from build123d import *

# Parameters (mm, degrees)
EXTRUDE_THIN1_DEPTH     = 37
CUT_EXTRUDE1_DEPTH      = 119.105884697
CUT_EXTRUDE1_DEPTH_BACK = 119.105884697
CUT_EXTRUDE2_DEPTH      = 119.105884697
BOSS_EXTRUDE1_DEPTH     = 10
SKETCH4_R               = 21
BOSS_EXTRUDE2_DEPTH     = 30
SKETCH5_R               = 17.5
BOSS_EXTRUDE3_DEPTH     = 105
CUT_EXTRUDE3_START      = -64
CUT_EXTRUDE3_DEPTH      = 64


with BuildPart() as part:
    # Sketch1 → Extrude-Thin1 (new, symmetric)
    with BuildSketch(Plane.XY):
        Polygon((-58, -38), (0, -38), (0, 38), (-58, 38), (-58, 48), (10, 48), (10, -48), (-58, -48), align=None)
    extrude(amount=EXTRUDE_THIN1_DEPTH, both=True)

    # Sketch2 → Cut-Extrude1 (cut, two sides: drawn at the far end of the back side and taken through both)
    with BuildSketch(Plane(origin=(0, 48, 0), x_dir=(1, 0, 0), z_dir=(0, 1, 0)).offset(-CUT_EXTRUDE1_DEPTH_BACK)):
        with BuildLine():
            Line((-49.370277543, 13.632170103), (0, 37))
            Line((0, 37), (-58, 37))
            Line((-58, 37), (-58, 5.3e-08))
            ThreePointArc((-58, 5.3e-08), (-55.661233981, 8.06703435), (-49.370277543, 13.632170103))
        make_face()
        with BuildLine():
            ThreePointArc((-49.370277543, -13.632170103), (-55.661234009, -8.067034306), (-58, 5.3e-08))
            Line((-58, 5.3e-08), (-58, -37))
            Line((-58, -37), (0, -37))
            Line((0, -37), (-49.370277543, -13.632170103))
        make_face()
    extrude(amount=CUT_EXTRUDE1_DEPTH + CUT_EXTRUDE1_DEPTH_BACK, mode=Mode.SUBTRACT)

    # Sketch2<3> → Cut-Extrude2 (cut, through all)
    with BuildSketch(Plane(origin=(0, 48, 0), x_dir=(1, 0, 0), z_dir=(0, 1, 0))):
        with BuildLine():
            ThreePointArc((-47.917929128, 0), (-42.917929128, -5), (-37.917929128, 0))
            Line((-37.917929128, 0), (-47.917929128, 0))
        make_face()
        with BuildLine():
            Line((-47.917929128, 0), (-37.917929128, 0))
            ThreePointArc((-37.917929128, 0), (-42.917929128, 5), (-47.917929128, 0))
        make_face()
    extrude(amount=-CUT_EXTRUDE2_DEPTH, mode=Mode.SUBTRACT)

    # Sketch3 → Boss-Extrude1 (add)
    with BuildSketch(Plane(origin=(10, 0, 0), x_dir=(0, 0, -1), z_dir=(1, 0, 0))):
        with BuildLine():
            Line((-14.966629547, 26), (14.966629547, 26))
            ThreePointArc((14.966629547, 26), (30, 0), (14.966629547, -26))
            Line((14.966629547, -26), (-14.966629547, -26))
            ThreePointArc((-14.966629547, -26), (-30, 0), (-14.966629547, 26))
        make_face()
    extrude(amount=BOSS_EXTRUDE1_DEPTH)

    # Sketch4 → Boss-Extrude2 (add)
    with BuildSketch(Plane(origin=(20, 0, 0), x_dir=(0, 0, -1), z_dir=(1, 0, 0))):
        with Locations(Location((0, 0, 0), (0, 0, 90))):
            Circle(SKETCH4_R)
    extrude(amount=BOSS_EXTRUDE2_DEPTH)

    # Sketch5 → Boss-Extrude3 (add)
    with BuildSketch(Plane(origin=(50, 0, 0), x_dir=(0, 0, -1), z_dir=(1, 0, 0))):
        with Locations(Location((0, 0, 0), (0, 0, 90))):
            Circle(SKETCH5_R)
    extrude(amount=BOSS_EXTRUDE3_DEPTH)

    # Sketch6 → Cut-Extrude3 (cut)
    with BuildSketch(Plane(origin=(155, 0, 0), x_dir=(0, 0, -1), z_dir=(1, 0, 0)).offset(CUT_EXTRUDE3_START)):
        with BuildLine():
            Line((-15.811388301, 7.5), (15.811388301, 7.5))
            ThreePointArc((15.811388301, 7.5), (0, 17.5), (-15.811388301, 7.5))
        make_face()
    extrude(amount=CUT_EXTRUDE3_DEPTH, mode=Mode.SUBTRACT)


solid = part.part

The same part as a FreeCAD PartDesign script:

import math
import FreeCAD as App
import Part
import Sketcher
from FreeCAD import Vector


def add_polygon(sketch, points):
    """Adds a closed chain of lines whose ends are joined by coincident constraints."""
    first, n = sketch.GeometryCount, len(points)
    for a, b in zip(points, points[1:] + points[:1]):
        sketch.addGeometry(Part.LineSegment(App.Vector(*a, 0), App.Vector(*b, 0)), False)
    for i in range(n):
        sketch.addConstraint(Sketcher.Constraint("Coincident", first + i, 2, first + (i + 1) % n, 1))

doc = App.newDocument("Part")
body = doc.addObject("PartDesign::Body", "Body")

# Sketch on XY plane
sketch1 = doc.addObject("Sketcher::SketchObject", "Sketch")
body.addObject(sketch1)
sketch1.AttachmentSupport = (doc.XY_Plane, [""])
sketch1.MapMode = "FlatFace"
add_polygon(sketch1, [(0, -38), (-58, -38), (-58, -48), (10, -48), (10, 48), (-58, 48), (-58, 38), (0, 38)])  # lines 0-7
sketch1.addConstraint([
    Sketcher.Constraint("Horizontal", 0),
    Sketcher.Constraint("Vertical", 1),
    Sketcher.Constraint("Horizontal", 2),
    Sketcher.Constraint("Vertical", 3),
    Sketcher.Constraint("Horizontal", 4),
    Sketcher.Constraint("Vertical", 5),
    Sketcher.Constraint("Horizontal", 6),
    Sketcher.Constraint("Vertical", 7),
    Sketcher.Constraint("Symmetric", 6, 2, 7, 2, -1, 1),
    Sketcher.Constraint("Symmetric", 1, 2, 4, 2, -1),
    Sketcher.Constraint("DistanceX", 0, 2, 0, 1, 58.0),
    Sketcher.Constraint("DistanceX", 2, 1, 2, 2, 68.0),
    Sketcher.Constraint("DistanceY", 1, 2, 1, 1, 10.0),
    Sketcher.Constraint("DistanceY", 3, 1, 3, 2, 96.0),
])
pad1 = doc.addObject("PartDesign::Pad", "Pad")
body.addObject(pad1)
pad1.Profile = sketch1
pad1.Length = 74
pad1.Midplane = True

# Sketch on XZ plane
sketch2 = doc.addObject("Sketcher::SketchObject", "Sketch001")
body.addObject(sketch2)
sketch2.AttachmentSupport = (doc.XZ_Plane, [""])
sketch2.MapMode = "FlatFace"
sketch2.AttachmentOffset = App.Placement(Vector(0, 0, -48), App.Rotation())
sketch2.addGeometry([
    Part.LineSegment(Vector(-49.370278, -13.63217, 0), Vector(0, -37, 0)),  # 0
    Part.LineSegment(Vector(0, -37, 0), Vector(-58, -37, 0)),  # 1
    Part.LineSegment(Vector(-58, -37, 0), Vector(-58, 0, 0)),  # 2
    Part.ArcOfCircle(Part.Circle(Vector(-42.917929, 0, 0), Vector(0, 0, 1), 15.082071), math.radians(-180), math.radians(-115.329026)),  # 3
    Part.ArcOfCircle(Part.Circle(Vector(-42.917929, 0, 0), Vector(0, 0, 1), 15.082071), math.radians(115.329026), math.radians(180)),  # 4
    Part.LineSegment(Vector(-58, 0, 0), Vector(-58, 37, 0)),  # 5
    Part.LineSegment(Vector(-58, 37, 0), Vector(0, 37, 0)),  # 6
    Part.LineSegment(Vector(0, 37, 0), Vector(-49.370278, 13.63217, 0)),  # 7
], False)
sketch2.addConstraint([
    Sketcher.Constraint("Coincident", 0, 2, 1, 1),
    Sketcher.Constraint("Coincident", 1, 2, 2, 1),
    Sketcher.Constraint("Tangent", 2, 2, 3, 1),
    Sketcher.Constraint("Tangent", 3, 2, 0, 1),
    Sketcher.Constraint("Tangent", 4, 2, 5, 1),
    Sketcher.Constraint("Coincident", 5, 2, 6, 1),
    Sketcher.Constraint("Coincident", 6, 2, 7, 1),
    Sketcher.Constraint("Tangent", 7, 2, 4, 1),
    Sketcher.Constraint("Horizontal", 1),
    Sketcher.Constraint("Vertical", 2),
    Sketcher.Constraint("Vertical", 5),
    Sketcher.Constraint("Horizontal", 6),
    Sketcher.Constraint("Coincident", 4, 3, 3, 3),
    Sketcher.Constraint("Equal", 3, 4),
    Sketcher.Constraint("Symmetric", 0, 2, 6, 2, -1, 1),
    Sketcher.Constraint("Symmetric", 3, 2, 7, 2, -1),
    Sketcher.Constraint("DistanceX", 1, 2, 1, 1, 58.0),
    Sketcher.Constraint("DistanceY", 2, 1, 2, 2, 37.0),
    Sketcher.Constraint("Radius", 3, 15.082071),
])
pocket1 = doc.addObject("PartDesign::Pocket", "Pocket")
body.addObject(pocket1)
pocket1.Profile = sketch2
pocket1.Type = "ThroughAll"
pocket1.Midplane = True

# Sketch on XZ plane
sketch3 = doc.addObject("Sketcher::SketchObject", "Sketch002")
body.addObject(sketch3)
sketch3.AttachmentSupport = (doc.XZ_Plane, [""])
sketch3.MapMode = "FlatFace"
sketch3.AttachmentOffset = App.Placement(Vector(0, 0, -48), App.Rotation())
sketch3.addGeometry(Part.Circle(Vector(-42.917929, 0, 0), Vector(0, 0, 1), 5), False)
sketch3.addConstraint([
    Sketcher.Constraint("PointOnObject", 0, 3, -1),
    Sketcher.Constraint("Diameter", 0, 10.0),
    Sketcher.Constraint("DistanceX", 0, 3, -1, 1, 42.917929),
])
pocket2 = doc.addObject("PartDesign::Pocket", "Pocket001")
body.addObject(pocket2)
pocket2.Profile = sketch3
pocket2.Type = "ThroughAll"
pocket2.Reversed = True

# Sketch on YZ plane
sketch4 = doc.addObject("Sketcher::SketchObject", "Sketch003")
body.addObject(sketch4)
sketch4.AttachmentSupport = (doc.YZ_Plane, [""])
sketch4.MapMode = "FlatFace"
sketch4.AttachmentOffset = App.Placement(Vector(0, 0, 10), App.Rotation())
sketch4.addGeometry([
    Part.LineSegment(Vector(26, -14.96663, 0), Vector(26, 14.96663, 0)),
    Part.ArcOfCircle(Part.Circle(Vector(0, 0, 0), Vector(0, 0, 1), 30), math.radians(29.926435), math.radians(150.073565)),
    Part.LineSegment(Vector(-26, 14.96663, 0), Vector(-26, -14.96663, 0)),
    Part.ArcOfCircle(Part.Circle(Vector(0, 0, 0), Vector(0, 0, 1), 30), math.radians(-150.073565), math.radians(-29.926435)),
], False)
sketch4.addConstraint([
    Sketcher.Constraint("Coincident", 0, 2, 1, 1),
    Sketcher.Constraint("Coincident", 1, 2, 2, 1),
    Sketcher.Constraint("Coincident", 2, 2, 3, 1),
    Sketcher.Constraint("Coincident", 3, 2, 0, 1),
    Sketcher.Constraint("Vertical", 0),
    Sketcher.Constraint("Vertical", 2),
    Sketcher.Constraint("Coincident", 1, 3, -1, 1),
    Sketcher.Constraint("Coincident", 3, 3, -1, 1),
    Sketcher.Constraint("Equal", 1, 3),
    Sketcher.Constraint("Horizontal", 0, 2, 1, 2),
    Sketcher.Constraint("Radius", 1, 30.0),
    Sketcher.Constraint("DistanceX", -1, 1, 0, 2, 26.0),
])
pad2 = doc.addObject("PartDesign::Pad", "Pad001")
body.addObject(pad2)
pad2.Profile = sketch4
pad2.Length = 10

# Sketch on YZ plane
sketch5 = doc.addObject("Sketcher::SketchObject", "Sketch004")
body.addObject(sketch5)
sketch5.AttachmentSupport = (doc.YZ_Plane, [""])
sketch5.MapMode = "FlatFace"
sketch5.AttachmentOffset = App.Placement(Vector(0, 0, 20), App.Rotation())
sketch5.addGeometry(Part.Circle(Vector(0, 0, 0), Vector(0, 0, 1), 21), False)
sketch5.addConstraint([
    Sketcher.Constraint("Coincident", 0, 3, -1, 1),
    Sketcher.Constraint("Diameter", 0, 42.0),
])
pad3 = doc.addObject("PartDesign::Pad", "Pad002")
body.addObject(pad3)
pad3.Profile = sketch5
pad3.Length = 30

# Sketch on YZ plane
sketch6 = doc.addObject("Sketcher::SketchObject", "Sketch005")
body.addObject(sketch6)
sketch6.AttachmentSupport = (doc.YZ_Plane, [""])
sketch6.MapMode = "FlatFace"
sketch6.AttachmentOffset = App.Placement(Vector(0, 0, 50), App.Rotation())
sketch6.addGeometry(Part.Circle(Vector(0, 0, 0), Vector(0, 0, 1), 17.5), False)
sketch6.addConstraint([
    Sketcher.Constraint("Coincident", 0, 3, -1, 1),
    Sketcher.Constraint("Diameter", 0, 35.0),
])
pad4 = doc.addObject("PartDesign::Pad", "Pad003")
body.addObject(pad4)
pad4.Profile = sketch6
pad4.Length = 105

# Sketch on YZ plane
sketch7 = doc.addObject("Sketcher::SketchObject", "Sketch006")
body.addObject(sketch7)
sketch7.AttachmentSupport = (doc.YZ_Plane, [""])
sketch7.MapMode = "FlatFace"
sketch7.AttachmentOffset = App.Placement(Vector(0, 0, 91), App.Rotation())
sketch7.addGeometry([
    Part.LineSegment(Vector(7.5, 15.811388, 0), Vector(7.5, -15.811388, 0)),
    Part.ArcOfCircle(Part.Circle(Vector(0, 0, 0), Vector(0, 0, 1), 17.5), math.radians(-64.623066), math.radians(64.623066)),
], False)
sketch7.addConstraint([
    Sketcher.Constraint("Coincident", 0, 1, 1, 2),
    Sketcher.Constraint("Coincident", 1, 1, 0, 2),
    Sketcher.Constraint("Vertical", 0),
    Sketcher.Constraint("Coincident", 1, 3, -1, 1),
    Sketcher.Constraint("Radius", 1, 17.5),
    Sketcher.Constraint("DistanceX", -1, 1, 0, 1, 7.5),
])
pocket3 = doc.addObject("PartDesign::Pocket", "Pocket002")
body.addObject(pocket3)
pocket3.Profile = sketch7
pocket3.Length = 64
pocket3.Reversed = True

doc.recompute()
